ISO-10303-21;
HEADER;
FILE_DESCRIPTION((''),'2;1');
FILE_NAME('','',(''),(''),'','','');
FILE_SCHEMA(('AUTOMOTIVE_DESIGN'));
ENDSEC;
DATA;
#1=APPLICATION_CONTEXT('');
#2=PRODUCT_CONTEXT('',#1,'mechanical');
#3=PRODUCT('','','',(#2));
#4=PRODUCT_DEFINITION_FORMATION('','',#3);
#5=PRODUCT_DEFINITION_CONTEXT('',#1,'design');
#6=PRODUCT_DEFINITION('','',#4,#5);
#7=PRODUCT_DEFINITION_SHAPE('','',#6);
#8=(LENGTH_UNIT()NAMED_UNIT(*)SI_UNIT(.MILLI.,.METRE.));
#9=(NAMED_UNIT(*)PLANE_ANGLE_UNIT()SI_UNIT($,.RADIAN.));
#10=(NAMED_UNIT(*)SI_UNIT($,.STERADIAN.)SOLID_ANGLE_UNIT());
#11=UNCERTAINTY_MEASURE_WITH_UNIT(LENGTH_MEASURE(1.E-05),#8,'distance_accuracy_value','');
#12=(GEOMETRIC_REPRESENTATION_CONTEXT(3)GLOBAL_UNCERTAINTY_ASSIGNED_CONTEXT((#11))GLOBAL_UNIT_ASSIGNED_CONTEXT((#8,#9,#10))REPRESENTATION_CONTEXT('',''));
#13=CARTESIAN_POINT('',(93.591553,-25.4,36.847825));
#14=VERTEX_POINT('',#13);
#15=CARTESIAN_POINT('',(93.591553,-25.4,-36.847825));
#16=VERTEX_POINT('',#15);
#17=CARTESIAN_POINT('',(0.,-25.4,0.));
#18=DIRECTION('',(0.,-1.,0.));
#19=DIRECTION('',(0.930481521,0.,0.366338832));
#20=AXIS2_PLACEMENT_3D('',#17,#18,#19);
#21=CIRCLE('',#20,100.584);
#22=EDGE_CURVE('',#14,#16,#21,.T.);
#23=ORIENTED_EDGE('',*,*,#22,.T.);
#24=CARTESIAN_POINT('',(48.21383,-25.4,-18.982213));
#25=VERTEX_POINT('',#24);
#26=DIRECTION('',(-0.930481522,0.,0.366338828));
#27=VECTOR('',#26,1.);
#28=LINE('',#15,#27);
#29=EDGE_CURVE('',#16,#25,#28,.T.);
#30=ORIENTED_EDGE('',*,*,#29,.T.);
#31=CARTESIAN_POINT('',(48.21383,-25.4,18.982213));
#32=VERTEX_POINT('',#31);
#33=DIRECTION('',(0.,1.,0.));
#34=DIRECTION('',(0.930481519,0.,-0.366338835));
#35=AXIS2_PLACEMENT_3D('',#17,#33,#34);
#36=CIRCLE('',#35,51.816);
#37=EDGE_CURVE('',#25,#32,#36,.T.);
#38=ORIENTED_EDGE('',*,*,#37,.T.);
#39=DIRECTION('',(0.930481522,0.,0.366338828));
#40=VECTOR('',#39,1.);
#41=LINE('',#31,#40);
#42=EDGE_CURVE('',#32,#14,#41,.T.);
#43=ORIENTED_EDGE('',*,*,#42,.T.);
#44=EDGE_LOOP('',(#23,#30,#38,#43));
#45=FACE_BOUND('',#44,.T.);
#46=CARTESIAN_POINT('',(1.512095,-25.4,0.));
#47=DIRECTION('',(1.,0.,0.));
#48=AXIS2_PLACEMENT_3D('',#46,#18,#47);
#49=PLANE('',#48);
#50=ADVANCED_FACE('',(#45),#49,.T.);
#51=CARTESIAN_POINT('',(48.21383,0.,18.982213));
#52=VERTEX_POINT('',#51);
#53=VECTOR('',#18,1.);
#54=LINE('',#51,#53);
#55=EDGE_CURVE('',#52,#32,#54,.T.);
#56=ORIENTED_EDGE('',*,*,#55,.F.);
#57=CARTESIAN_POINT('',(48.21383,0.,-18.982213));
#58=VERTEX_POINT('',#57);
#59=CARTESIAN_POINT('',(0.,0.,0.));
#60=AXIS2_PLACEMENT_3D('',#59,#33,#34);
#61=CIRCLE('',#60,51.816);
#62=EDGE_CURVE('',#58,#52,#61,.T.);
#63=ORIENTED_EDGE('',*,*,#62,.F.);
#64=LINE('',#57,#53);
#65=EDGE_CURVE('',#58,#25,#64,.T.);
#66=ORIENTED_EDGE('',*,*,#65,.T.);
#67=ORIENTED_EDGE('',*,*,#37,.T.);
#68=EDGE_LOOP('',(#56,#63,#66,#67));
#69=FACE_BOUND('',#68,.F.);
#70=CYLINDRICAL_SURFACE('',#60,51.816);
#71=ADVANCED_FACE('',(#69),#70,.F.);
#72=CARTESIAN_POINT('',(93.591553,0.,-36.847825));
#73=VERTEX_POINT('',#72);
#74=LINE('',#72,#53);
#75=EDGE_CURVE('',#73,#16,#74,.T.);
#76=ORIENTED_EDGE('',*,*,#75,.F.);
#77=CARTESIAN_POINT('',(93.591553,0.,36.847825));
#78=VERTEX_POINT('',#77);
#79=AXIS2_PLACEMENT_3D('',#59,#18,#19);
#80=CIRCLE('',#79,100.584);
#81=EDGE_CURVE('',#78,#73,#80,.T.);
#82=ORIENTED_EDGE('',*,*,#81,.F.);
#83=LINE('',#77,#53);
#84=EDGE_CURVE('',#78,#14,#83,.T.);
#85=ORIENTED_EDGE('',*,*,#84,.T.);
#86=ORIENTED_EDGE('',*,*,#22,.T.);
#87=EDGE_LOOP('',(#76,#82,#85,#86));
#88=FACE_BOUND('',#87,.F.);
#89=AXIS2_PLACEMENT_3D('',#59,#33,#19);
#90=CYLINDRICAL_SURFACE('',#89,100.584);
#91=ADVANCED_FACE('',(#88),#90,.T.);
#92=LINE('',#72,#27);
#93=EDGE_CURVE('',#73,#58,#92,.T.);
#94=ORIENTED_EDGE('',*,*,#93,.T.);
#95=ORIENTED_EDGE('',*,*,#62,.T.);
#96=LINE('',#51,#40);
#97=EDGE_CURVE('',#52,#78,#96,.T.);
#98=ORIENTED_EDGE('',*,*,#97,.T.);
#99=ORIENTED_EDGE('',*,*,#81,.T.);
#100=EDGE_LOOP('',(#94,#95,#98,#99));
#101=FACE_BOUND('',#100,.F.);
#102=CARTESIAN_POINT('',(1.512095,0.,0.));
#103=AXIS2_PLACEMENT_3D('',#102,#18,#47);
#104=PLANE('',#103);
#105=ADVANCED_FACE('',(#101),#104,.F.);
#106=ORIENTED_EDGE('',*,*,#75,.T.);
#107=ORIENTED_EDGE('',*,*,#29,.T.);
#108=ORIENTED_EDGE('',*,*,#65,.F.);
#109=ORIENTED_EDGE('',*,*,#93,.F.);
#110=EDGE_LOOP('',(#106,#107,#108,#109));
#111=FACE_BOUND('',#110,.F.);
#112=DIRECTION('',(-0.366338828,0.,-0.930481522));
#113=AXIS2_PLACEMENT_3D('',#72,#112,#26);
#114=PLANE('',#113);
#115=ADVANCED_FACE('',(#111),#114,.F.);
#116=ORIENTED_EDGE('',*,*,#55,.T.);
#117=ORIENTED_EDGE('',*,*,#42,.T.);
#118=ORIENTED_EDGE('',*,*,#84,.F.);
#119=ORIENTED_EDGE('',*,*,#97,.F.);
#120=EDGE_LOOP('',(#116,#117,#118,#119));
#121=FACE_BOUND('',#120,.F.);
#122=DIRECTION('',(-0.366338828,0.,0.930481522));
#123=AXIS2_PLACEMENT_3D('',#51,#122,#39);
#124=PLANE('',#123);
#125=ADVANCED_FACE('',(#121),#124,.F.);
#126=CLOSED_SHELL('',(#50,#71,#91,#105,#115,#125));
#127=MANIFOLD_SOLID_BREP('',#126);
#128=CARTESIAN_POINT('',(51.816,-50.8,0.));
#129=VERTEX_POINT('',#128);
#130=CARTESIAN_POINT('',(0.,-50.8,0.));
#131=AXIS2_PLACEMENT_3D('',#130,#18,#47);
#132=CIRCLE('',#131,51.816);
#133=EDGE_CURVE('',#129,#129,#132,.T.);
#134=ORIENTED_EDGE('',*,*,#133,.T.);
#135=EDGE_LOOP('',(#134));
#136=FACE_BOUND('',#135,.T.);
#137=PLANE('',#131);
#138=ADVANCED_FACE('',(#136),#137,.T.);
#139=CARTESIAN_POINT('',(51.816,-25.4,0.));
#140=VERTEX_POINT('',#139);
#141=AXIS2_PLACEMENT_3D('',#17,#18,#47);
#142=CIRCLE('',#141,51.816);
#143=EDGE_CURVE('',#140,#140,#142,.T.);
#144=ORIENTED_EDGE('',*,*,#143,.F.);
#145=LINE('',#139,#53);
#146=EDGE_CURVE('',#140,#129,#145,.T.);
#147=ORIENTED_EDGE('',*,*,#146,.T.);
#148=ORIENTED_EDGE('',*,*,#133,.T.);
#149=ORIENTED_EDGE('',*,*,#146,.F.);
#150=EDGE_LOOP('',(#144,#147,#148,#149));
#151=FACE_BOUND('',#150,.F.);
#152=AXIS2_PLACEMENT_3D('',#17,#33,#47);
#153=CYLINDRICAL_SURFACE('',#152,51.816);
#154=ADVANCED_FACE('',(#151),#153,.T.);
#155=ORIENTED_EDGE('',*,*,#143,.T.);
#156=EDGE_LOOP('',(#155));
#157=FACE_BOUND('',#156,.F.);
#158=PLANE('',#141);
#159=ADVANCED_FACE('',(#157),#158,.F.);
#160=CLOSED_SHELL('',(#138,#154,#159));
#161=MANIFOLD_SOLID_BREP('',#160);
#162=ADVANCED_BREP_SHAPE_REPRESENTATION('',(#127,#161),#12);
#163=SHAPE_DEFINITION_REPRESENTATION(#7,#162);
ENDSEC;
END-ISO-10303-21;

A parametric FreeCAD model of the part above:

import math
import FreeCAD as App
import Part
import Sketcher
from FreeCAD import Vector
Q = App.Units.Quantity

doc = App.newDocument("Part")
params = doc.addObject("Spreadsheet::Sheet", "Params")
for row, (alias, value) in enumerate([
    ("sketch1_radius", "3.96 in"),
    ("sketch1_radius2", "2.04 in"),
    ("pad1_length", "1 in"),
    ("sketch2_diameter", "4.08 in"),
    ("pad2_length", "1 in"),
], start=1):
    params.set(f"A{row}", alias)
    params.set(f"B{row}", "=" + value)
    params.setAlias(f"B{row}", alias)

body = doc.addObject("PartDesign::Body", "Body")

# Sketch on XZ plane
sketch1 = doc.addObject("Sketcher::SketchObject", "Sketch")
body.addObject(sketch1)
sketch1.AttachmentSupport = (doc.XZ_Plane, [""])
sketch1.MapMode = "FlatFace"
sketch1.addGeometry([
    Part.LineSegment(Vector(48, 19, 0), Vector(94, 37, 0)),
    Part.ArcOfCircle(Part.Circle(Vector(0, 0, 0), Vector(0, 0, 1), 101), math.radians(21), math.radians(339)),
    Part.LineSegment(Vector(94, -37, 0), Vector(48, -19, 0)),
    Part.ArcOfCircle(Part.Circle(Vector(0, 0, 0), Vector(0, 0, 1), 52), math.radians(21), math.radians(339)),
], False)
sketch1.addConstraint([
    Sketcher.Constraint("Coincident", 0, 2, 1, 1),
    Sketcher.Constraint("Coincident", 1, 2, 2, 1),
    Sketcher.Constraint("Coincident", 2, 2, 3, 2),
    Sketcher.Constraint("Coincident", 3, 1, 0, 1),
    Sketcher.Constraint("Coincident", 1, 3, -1, 1),
    Sketcher.Constraint("Coincident", 3, 3, -1, 1),
    Sketcher.Constraint("Vertical", 0, 2, 1, 2),
    Sketcher.Constraint("Vertical", 2, 2, 3, 1),
    Sketcher.Constraint("Radius", 1, Q("3.96 in")),
    Sketcher.Constraint("Radius", 3, Q("2.04 in")),
    Sketcher.Constraint("Angle", 0, Q("21.49 deg")),
    Sketcher.Constraint("DistanceX", -1, 1, 2, 2, 48.21383),
])
sketch1.setExpression("Constraints[8]", "Params.sketch1_radius")
sketch1.setExpression("Constraints[9]", "Params.sketch1_radius2")
pad1 = doc.addObject("PartDesign::Pad", "Pad")
body.addObject(pad1)
pad1.Profile = sketch1
pad1.setExpression("Length", "Params.pad1_length")
body2 = doc.addObject("PartDesign::Body", "Body001")

# Sketch on XZ plane
sketch2 = doc.addObject("Sketcher::SketchObject", "Sketch001")
body2.addObject(sketch2)
sketch2.AttachmentSupport = (doc.getObject("XZ_Plane001"), [""])
sketch2.MapMode = "FlatFace"
sketch2.AttachmentOffset = App.Placement(Vector(0, 0, 1 * 25.4), App.Rotation())
sketch2.addGeometry(Part.Circle(Vector(0, 0, 0), Vector(0, 0, 1), 52), False)
sketch2.addConstraint([
    Sketcher.Constraint("Coincident", 0, 3, -1, 1),
    Sketcher.Constraint("Diameter", 0, Q("4.08 in")),
])
sketch2.setExpression("Constraints[1]", "Params.sketch2_diameter")
pad2 = doc.addObject("PartDesign::Pad", "Pad001")
body2.addObject(pad2)
pad2.Profile = sketch2
pad2.setExpression("Length", "Params.pad2_length")

doc.recompute()
